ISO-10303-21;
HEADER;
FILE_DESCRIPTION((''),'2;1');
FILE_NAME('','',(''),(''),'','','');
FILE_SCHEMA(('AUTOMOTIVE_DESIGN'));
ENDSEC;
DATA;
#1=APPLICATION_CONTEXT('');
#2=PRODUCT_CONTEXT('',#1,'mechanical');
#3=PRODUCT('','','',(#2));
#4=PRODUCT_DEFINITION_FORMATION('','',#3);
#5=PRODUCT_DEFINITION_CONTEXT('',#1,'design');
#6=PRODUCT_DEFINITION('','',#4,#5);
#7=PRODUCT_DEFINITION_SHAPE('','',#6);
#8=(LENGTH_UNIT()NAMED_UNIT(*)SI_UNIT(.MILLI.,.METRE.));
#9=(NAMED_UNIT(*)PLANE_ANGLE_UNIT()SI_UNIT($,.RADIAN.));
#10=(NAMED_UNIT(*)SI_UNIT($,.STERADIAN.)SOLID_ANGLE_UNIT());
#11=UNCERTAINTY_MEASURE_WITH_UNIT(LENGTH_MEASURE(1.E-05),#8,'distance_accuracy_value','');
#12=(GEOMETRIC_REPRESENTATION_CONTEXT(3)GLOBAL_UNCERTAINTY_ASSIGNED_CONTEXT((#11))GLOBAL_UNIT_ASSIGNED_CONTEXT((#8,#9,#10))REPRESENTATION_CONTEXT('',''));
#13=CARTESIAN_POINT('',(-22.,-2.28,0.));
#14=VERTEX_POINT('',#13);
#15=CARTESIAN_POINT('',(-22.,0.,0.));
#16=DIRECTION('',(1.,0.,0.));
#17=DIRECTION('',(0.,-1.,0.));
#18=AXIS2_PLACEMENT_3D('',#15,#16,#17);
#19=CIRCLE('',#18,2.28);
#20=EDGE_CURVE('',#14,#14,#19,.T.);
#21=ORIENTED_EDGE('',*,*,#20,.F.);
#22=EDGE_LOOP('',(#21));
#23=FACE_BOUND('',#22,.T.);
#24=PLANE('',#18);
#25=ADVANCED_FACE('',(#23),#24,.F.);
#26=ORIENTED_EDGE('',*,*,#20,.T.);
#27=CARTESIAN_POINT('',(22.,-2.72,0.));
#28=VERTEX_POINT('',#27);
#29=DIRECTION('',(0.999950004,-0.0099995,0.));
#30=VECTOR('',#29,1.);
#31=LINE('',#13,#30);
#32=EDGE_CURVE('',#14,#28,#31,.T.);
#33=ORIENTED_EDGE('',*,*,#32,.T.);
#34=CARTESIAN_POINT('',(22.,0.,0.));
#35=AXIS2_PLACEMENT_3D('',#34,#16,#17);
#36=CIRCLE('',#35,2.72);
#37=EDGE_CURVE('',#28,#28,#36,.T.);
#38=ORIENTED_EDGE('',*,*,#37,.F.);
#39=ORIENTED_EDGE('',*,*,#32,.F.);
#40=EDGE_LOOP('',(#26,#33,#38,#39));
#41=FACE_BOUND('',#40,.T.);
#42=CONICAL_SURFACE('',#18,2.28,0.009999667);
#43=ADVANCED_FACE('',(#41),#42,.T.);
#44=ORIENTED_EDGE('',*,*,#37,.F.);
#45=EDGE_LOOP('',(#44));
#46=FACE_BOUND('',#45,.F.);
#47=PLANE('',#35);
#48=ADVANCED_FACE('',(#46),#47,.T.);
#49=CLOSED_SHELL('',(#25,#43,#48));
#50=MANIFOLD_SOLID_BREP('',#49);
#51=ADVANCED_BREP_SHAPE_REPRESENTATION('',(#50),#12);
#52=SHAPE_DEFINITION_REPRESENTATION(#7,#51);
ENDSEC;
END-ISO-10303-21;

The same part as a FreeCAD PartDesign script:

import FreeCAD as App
import Part
import Sketcher
from FreeCAD import Vector

doc = App.newDocument("Part")
params = doc.addObject("Spreadsheet::Sheet", "Params")
for row, (alias, value) in enumerate([
    ("sketch1_width", "44 mm"),
    ("sketch1_height", "2.28 mm"),
    ("sketch1_height2", "2.72 mm"),
    ("revolution_angle", "360 deg"),
], start=1):
    params.set(f"A{row}", alias)
    params.set(f"B{row}", "=" + value)
    params.setAlias(f"B{row}", alias)

body = doc.addObject("PartDesign::Body", "Body")

sketch1 = body.newObject("Sketcher::SketchObject", "Sketch")
sketch1.AttachmentSupport = (doc.getObject("XY_Plane"), [""])
sketch1.MapMode = "FlatFace"
sketch1.addGeometry([
    Part.LineSegment(Vector(22, 0, 0), Vector(-22, 0, 0)),
    Part.LineSegment(Vector(-22, 0, 0), Vector(-22, -2.3, 0)),
    Part.LineSegment(Vector(-22, -2.3, 0), Vector(22, -2.7, 0)),
    Part.LineSegment(Vector(22, -2.7, 0), Vector(22, 0, 0)),
], False)
sketch1.addConstraint([
    Sketcher.Constraint("Coincident", 0, 2, 1, 1),
    Sketcher.Constraint("Coincident", 1, 2, 2, 1),
    Sketcher.Constraint("Coincident", 2, 2, 3, 1),
    Sketcher.Constraint("Coincident", 3, 2, 0, 1),
    Sketcher.Constraint("Horizontal", 0),
    Sketcher.Constraint("Vertical", 1),
    Sketcher.Constraint("Vertical", 3),
    Sketcher.Constraint("Symmetric", 0, 2, 3, 2, -1, 1),
    Sketcher.Constraint("DistanceX", 0, 2, 0, 1, 44.0),
    Sketcher.Constraint("DistanceY", 1, 2, 1, 1, 2.28),
    Sketcher.Constraint("DistanceY", 3, 1, 3, 2, 2.72),
])
sketch1.setExpression("Constraints[8]", "Params.sketch1_width")
sketch1.setExpression("Constraints[9]", "Params.sketch1_height")
sketch1.setExpression("Constraints[10]", "Params.sketch1_height2")
revolution = body.newObject("PartDesign::Revolution", "Revolution")
revolution.Profile = sketch1
revolution.ReferenceAxis = (sketch1, ["H_Axis"])
revolution.setExpression("Angle", "Params.revolution_angle")

doc.recompute()
